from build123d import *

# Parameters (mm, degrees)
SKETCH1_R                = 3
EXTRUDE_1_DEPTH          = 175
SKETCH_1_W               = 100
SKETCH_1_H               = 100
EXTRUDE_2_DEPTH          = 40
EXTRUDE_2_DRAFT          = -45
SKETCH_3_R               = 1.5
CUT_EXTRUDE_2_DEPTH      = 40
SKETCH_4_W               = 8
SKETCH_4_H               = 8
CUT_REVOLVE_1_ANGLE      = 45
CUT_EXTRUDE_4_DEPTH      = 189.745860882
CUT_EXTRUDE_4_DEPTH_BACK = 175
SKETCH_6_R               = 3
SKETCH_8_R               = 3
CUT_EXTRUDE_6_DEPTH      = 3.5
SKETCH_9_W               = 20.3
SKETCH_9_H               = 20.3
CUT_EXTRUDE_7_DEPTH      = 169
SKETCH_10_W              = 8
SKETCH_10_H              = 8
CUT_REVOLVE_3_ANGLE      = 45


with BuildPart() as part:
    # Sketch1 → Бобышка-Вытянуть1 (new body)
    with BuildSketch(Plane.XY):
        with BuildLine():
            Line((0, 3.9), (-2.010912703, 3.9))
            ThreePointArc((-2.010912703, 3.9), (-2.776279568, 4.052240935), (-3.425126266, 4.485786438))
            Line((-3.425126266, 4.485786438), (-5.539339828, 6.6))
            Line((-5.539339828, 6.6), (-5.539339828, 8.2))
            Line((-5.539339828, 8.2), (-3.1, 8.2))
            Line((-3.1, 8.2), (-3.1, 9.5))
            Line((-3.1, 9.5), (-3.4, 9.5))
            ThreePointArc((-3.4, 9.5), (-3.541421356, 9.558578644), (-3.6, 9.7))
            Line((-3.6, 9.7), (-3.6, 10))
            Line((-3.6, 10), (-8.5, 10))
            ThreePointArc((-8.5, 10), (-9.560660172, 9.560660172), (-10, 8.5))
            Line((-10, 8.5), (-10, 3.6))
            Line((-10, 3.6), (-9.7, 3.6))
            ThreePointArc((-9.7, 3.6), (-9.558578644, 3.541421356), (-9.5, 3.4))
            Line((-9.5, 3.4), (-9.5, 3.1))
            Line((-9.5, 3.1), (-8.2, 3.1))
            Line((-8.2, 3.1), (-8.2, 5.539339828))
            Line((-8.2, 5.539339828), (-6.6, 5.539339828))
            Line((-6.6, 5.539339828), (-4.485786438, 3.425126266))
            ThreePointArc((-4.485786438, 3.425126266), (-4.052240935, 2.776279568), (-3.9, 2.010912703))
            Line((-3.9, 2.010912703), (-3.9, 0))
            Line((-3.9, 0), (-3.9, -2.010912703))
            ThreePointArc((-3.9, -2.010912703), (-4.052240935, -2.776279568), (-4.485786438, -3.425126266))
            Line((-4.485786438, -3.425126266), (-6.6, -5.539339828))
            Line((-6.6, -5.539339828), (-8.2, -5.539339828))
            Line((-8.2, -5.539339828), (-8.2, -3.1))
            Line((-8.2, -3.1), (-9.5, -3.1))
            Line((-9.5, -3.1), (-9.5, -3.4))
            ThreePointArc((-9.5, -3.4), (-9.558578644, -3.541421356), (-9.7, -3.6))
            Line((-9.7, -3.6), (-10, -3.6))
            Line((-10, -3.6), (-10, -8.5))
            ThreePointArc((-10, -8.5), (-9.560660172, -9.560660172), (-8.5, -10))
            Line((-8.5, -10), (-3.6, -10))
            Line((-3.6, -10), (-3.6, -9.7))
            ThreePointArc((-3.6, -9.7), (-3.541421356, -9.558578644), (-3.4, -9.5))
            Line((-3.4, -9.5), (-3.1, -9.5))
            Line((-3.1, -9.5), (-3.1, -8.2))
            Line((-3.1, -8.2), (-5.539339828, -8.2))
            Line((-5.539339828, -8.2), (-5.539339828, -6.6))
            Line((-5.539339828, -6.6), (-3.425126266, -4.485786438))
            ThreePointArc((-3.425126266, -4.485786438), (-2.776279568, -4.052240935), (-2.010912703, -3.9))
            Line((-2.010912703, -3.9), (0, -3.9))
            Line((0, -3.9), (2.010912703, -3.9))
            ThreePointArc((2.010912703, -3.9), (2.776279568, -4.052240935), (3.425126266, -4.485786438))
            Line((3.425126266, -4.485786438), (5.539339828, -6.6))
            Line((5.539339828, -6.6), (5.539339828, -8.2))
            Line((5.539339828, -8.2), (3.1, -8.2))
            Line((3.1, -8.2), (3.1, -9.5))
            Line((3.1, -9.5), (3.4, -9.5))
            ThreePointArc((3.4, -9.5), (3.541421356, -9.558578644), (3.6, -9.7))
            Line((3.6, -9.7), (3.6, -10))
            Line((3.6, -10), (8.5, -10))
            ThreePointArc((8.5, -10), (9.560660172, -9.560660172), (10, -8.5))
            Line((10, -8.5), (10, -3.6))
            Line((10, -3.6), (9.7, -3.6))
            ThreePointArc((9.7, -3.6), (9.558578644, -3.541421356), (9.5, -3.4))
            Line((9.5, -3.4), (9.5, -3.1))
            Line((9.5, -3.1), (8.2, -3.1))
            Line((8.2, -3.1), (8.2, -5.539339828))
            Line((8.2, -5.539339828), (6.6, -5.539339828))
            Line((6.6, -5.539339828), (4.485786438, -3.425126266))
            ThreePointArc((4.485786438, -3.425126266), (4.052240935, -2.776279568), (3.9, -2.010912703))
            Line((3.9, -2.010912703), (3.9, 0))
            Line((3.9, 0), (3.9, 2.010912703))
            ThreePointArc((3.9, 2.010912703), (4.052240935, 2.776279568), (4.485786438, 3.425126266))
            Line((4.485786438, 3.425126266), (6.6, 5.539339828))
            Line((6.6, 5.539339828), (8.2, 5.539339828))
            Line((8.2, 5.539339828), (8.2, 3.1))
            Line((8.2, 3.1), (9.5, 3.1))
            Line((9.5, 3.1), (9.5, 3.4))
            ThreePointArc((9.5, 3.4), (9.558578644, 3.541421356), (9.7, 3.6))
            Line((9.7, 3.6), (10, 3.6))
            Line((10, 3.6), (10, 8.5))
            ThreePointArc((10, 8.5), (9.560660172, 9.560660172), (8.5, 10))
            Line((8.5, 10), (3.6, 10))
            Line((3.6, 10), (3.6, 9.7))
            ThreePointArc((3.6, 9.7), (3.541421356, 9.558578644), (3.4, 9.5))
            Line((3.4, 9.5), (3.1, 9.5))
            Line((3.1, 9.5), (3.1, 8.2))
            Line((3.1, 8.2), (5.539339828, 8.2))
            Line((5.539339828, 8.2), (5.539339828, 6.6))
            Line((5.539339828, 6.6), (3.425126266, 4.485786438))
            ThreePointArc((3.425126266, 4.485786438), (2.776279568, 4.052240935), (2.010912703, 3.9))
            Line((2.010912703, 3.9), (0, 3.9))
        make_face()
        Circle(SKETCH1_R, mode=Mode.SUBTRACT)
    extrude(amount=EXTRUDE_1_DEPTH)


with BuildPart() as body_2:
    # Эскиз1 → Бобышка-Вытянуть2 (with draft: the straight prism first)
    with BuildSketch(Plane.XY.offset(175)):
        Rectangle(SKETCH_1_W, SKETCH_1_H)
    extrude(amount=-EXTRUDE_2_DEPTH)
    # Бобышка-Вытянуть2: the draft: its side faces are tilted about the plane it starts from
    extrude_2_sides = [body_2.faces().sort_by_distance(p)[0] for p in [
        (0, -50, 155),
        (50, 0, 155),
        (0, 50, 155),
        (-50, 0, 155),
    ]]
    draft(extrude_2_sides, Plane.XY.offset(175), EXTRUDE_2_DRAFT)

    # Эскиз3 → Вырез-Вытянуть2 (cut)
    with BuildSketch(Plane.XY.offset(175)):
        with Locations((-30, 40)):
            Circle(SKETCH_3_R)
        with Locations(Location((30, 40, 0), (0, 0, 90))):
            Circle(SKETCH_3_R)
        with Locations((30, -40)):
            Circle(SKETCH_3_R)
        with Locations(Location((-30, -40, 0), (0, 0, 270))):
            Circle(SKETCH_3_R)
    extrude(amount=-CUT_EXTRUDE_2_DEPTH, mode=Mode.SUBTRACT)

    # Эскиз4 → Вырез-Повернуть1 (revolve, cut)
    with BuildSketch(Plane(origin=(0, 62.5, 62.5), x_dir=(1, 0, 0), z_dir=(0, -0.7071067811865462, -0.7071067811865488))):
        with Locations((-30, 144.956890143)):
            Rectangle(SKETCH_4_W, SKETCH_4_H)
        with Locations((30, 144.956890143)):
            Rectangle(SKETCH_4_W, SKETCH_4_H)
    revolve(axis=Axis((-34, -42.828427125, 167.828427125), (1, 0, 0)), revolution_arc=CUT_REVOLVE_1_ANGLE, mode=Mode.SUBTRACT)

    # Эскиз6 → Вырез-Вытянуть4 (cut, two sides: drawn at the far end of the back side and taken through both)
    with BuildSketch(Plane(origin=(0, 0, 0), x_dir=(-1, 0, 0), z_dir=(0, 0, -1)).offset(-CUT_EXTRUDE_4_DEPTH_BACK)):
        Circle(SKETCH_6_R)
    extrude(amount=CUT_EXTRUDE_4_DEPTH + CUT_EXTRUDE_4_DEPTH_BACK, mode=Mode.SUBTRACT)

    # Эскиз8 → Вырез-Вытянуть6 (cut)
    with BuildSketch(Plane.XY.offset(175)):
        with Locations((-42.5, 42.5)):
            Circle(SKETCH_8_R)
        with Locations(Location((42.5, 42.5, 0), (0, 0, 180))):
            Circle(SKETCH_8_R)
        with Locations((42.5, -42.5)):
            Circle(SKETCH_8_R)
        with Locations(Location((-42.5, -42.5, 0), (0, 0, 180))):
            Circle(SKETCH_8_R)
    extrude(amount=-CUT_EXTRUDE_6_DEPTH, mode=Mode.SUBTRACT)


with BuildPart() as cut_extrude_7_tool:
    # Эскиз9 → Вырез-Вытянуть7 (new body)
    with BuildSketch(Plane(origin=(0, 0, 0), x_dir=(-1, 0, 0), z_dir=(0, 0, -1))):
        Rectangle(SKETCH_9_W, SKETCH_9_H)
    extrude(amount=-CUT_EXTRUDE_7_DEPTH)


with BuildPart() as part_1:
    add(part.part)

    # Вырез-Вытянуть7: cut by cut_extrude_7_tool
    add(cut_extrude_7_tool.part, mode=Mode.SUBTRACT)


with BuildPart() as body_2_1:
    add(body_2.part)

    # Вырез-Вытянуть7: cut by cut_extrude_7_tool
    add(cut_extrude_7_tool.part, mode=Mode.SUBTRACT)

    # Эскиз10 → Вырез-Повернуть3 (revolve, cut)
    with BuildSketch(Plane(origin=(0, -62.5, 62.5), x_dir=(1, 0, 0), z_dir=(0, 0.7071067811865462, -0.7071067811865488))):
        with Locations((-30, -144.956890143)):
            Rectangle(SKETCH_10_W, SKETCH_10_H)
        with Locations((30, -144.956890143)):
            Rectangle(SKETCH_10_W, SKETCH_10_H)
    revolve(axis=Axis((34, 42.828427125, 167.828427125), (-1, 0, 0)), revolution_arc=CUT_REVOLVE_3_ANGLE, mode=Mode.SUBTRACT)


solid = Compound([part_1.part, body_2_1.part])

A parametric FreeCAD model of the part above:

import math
import FreeCAD as App
import Part
import Sketcher

V = App.Vector


def faces_at(feature, points):
    """Names of the faces that lie closest to the given points."""
    faces = feature.Shape.Faces
    near = lambda p: min(range(len(faces)), key=lambda i: faces[i].distToShape(Part.Vertex(*p))[0])
    return sorted({f"Face{near(p) + 1}" for p in points})

doc = App.newDocument("Part")
body = doc.addObject("PartDesign::Body", "Body")

# Sketch on XY plane
sketch1 = doc.addObject("Sketcher::SketchObject", "Sketch")
body.addObject(sketch1)
sketch1.AttachmentSupport = (doc.XY_Plane, [""])
sketch1.MapMode = "FlatFace"
sketch1.addGeometry([
    Part.ArcOfCircle(Part.Circle(V(-2.01, 5.9, 0), V(0, 0, 1), 2), math.radians(-135), math.radians(-90)),  # 0
    Part.LineSegment(V(-3.43, 4.49, 0), V(-5.54, 6.6, 0)),  # 1
    Part.LineSegment(V(-5.54, 6.6, 0), V(-5.54, 8.2, 0)),  # 2
    Part.LineSegment(V(-5.54, 8.2, 0), V(-3.1, 8.2, 0)),  # 3
    Part.LineSegment(V(-3.1, 8.2, 0), V(-3.1, 9.5, 0)),  # 4
    Part.LineSegment(V(-3.1, 9.5, 0), V(-3.4, 9.5, 0)),  # 5
    Part.ArcOfCircle(Part.Circle(V(-3.4, 9.7, 0), V(0, 0, 1), 0.2), math.radians(-180), math.radians(-90)),  # 6
    Part.LineSegment(V(-3.6, 9.7, 0), V(-3.6, 10, 0)),  # 7
    Part.LineSegment(V(-3.6, 10, 0), V(-8.5, 10, 0)),  # 8
    Part.ArcOfCircle(Part.Circle(V(-8.5, 8.5, 0), V(0, 0, 1), 1.5), math.radians(90), math.radians(180)),  # 9
    Part.LineSegment(V(-10, 8.5, 0), V(-10, 3.6, 0)),  # 10
    Part.LineSegment(V(-10, 3.6, 0), V(-9.7, 3.6, 0)),  # 11
    Part.ArcOfCircle(Part.Circle(V(-9.7, 3.4, 0), V(0, 0, 1), 0.2), math.radians(0), math.radians(90)),  # 12
    Part.LineSegment(V(-9.5, 3.4, 0), V(-9.5, 3.1, 0)),  # 13
    Part.LineSegment(V(-9.5, 3.1, 0), V(-8.2, 3.1, 0)),  # 14
    Part.LineSegment(V(-8.2, 3.1, 0), V(-8.2, 5.54, 0)),  # 15
    Part.LineSegment(V(-8.2, 5.54, 0), V(-6.6, 5.54, 0)),  # 16
    Part.LineSegment(V(-6.6, 5.54, 0), V(-4.49, 3.43, 0)),  # 17
    Part.ArcOfCircle(Part.Circle(V(-5.9, 2.01, 0), V(0, 0, 1), 2), math.radians(0), math.radians(45)),  # 18
    Part.LineSegment(V(-3.9, 2.01, 0), V(-3.9, -2.01, 0)),  # 19
    Part.ArcOfCircle(Part.Circle(V(-5.9, -2.01, 0), V(0, 0, 1), 2), math.radians(-45), math.radians(0)),  # 20
    Part.LineSegment(V(-4.49, -3.43, 0), V(-6.6, -5.54, 0)),  # 21
    Part.LineSegment(V(-6.6, -5.54, 0), V(-8.2, -5.54, 0)),  # 22
    Part.LineSegment(V(-8.2, -5.54, 0), V(-8.2, -3.1, 0)),  # 23
    Part.LineSegment(V(-8.2, -3.1, 0), V(-9.5, -3.1, 0)),  # 24
    Part.LineSegment(V(-9.5, -3.1, 0), V(-9.5, -3.4, 0)),  # 25
    Part.ArcOfCircle(Part.Circle(V(-9.7, -3.4, 0), V(0, 0, 1), 0.2), math.radians(-90), math.radians(0)),  # 26
    Part.LineSegment(V(-9.7, -3.6, 0), V(-10, -3.6, 0)),  # 27
    Part.LineSegment(V(-10, -3.6, 0), V(-10, -8.5, 0)),  # 28
    Part.ArcOfCircle(Part.Circle(V(-8.5, -8.5, 0), V(0, 0, 1), 1.5), math.radians(180), math.radians(270)),  # 29
    Part.LineSegment(V(-8.5, -10, 0), V(-3.6, -10, 0)),  # 30
    Part.LineSegment(V(-3.6, -10, 0), V(-3.6, -9.7, 0)),  # 31
    Part.ArcOfCircle(Part.Circle(V(-3.4, -9.7, 0), V(0, 0, 1), 0.2), math.radians(90), math.radians(180)),  # 32
    Part.LineSegment(V(-3.4, -9.5, 0), V(-3.1, -9.5, 0)),  # 33
    Part.LineSegment(V(-3.1, -9.5, 0), V(-3.1, -8.2, 0)),  # 34
    Part.LineSegment(V(-3.1, -8.2, 0), V(-5.54, -8.2, 0)),  # 35
    Part.LineSegment(V(-5.54, -8.2, 0), V(-5.54, -6.6, 0)),  # 36
    Part.LineSegment(V(-5.54, -6.6, 0), V(-3.43, -4.49, 0)),  # 37
    Part.ArcOfCircle(Part.Circle(V(-2.01, -5.9, 0), V(0, 0, 1), 2), math.radians(90), math.radians(135)),  # 38
    Part.LineSegment(V(-2.01, -3.9, 0), V(2.01, -3.9, 0)),  # 39
    Part.ArcOfCircle(Part.Circle(V(2.01, -5.9, 0), V(0, 0, 1), 2), math.radians(45), math.radians(90)),  # 40
    Part.LineSegment(V(3.43, -4.49, 0), V(5.54, -6.6, 0)),  # 41
    Part.LineSegment(V(5.54, -6.6, 0), V(5.54, -8.2, 0)),  # 42
    Part.LineSegment(V(5.54, -8.2, 0), V(3.1, -8.2, 0)),  # 43
    Part.LineSegment(V(3.1, -8.2, 0), V(3.1, -9.5, 0)),  # 44
    Part.LineSegment(V(3.1, -9.5, 0), V(3.4, -9.5, 0)),  # 45
    Part.ArcOfCircle(Part.Circle(V(3.4, -9.7, 0), V(0, 0, 1), 0.2), math.radians(0), math.radians(90)),  # 46
    Part.LineSegment(V(3.6, -9.7, 0), V(3.6, -10, 0)),  # 47
    Part.LineSegment(V(3.6, -10, 0), V(8.5, -10, 0)),  # 48
    Part.ArcOfCircle(Part.Circle(V(8.5, -8.5, 0), V(0, 0, 1), 1.5), math.radians(-90), math.radians(0)),  # 49
    Part.LineSegment(V(10, -8.5, 0), V(10, -3.6, 0)),  # 50
    Part.LineSegment(V(10, -3.6, 0), V(9.7, -3.6, 0)),  # 51
    Part.ArcOfCircle(Part.Circle(V(9.7, -3.4, 0), V(0, 0, 1), 0.2), math.radians(-180), math.radians(-90)),  # 52
    Part.LineSegment(V(9.5, -3.4, 0), V(9.5, -3.1, 0)),  # 53
    Part.LineSegment(V(9.5, -3.1, 0), V(8.2, -3.1, 0)),  # 54
    Part.LineSegment(V(8.2, -3.1, 0), V(8.2, -5.54, 0)),  # 55
    Part.LineSegment(V(8.2, -5.54, 0), V(6.6, -5.54, 0)),  # 56
    Part.LineSegment(V(6.6, -5.54, 0), V(4.49, -3.43, 0)),  # 57
    Part.ArcOfCircle(Part.Circle(V(5.9, -2.01, 0), V(0, 0, 1), 2), math.radians(180), math.radians(225)),  # 58
    Part.LineSegment(V(3.9, -2.01, 0), V(3.9, 2.01, 0)),  # 59
    Part.ArcOfCircle(Part.Circle(V(5.9, 2.01, 0), V(0, 0, 1), 2), math.radians(135), math.radians(180)),  # 60
    Part.LineSegment(V(4.49, 3.43, 0), V(6.6, 5.54, 0)),  # 61
    Part.LineSegment(V(6.6, 5.54, 0), V(8.2, 5.54, 0)),  # 62
    Part.LineSegment(V(8.2, 5.54, 0), V(8.2, 3.1, 0)),  # 63
    Part.LineSegment(V(8.2, 3.1, 0), V(9.5, 3.1, 0)),  # 64
    Part.LineSegment(V(9.5, 3.1, 0), V(9.5, 3.4, 0)),  # 65
    Part.ArcOfCircle(Part.Circle(V(9.7, 3.4, 0), V(0, 0, 1), 0.2), math.radians(90), math.radians(180)),  # 66
    Part.LineSegment(V(9.7, 3.6, 0), V(10, 3.6, 0)),  # 67
    Part.LineSegment(V(10, 3.6, 0), V(10, 8.5, 0)),  # 68
    Part.ArcOfCircle(Part.Circle(V(8.5, 8.5, 0), V(0, 0, 1), 1.5), math.radians(0), math.radians(90)),  # 69
    Part.LineSegment(V(8.5, 10, 0), V(3.6, 10, 0)),  # 70
    Part.LineSegment(V(3.6, 10, 0), V(3.6, 9.7, 0)),  # 71
    Part.ArcOfCircle(Part.Circle(V(3.4, 9.7, 0), V(0, 0, 1), 0.2), math.radians(-90), math.radians(0)),  # 72
    Part.LineSegment(V(3.4, 9.5, 0), V(3.1, 9.5, 0)),  # 73
    Part.LineSegment(V(3.1, 9.5, 0), V(3.1, 8.2, 0)),  # 74
    Part.LineSegment(V(3.1, 8.2, 0), V(5.54, 8.2, 0)),  # 75
    Part.LineSegment(V(5.54, 8.2, 0), V(5.54, 6.6, 0)),  # 76
    Part.LineSegment(V(5.54, 6.6, 0), V(3.43, 4.49, 0)),  # 77
    Part.ArcOfCircle(Part.Circle(V(2.01, 5.9, 0), V(0, 0, 1), 2), math.radians(-90), math.radians(-45)),  # 78
    Part.LineSegment(V(2.01, 3.9, 0), V(-2.01, 3.9, 0)),  # 79
    Part.Circle(V(0, 0, 0), V(0, 0, 1), 3),  # 80
], False)
sketch1.addConstraint([
    Sketcher.Constraint("Tangent", 0, 1, 1, 1),
    Sketcher.Constraint("Coincident", 1, 2, 2, 1),
    Sketcher.Constraint("Coincident", 2, 2, 3, 1),
    Sketcher.Constraint("Coincident", 3, 2, 4, 1),
    Sketcher.Constraint("Coincident", 4, 2, 5, 1),
    Sketcher.Constraint("Tangent", 5, 2, 6, 2),
    Sketcher.Constraint("Tangent", 6, 1, 7, 1),
    Sketcher.Constraint("Coincident", 7, 2, 8, 1),
    Sketcher.Constraint("Tangent", 8, 2, 9, 1),
    Sketcher.Constraint("Tangent", 9, 2, 10, 1),
    Sketcher.Constraint("Coincident", 10, 2, 11, 1),
    Sketcher.Constraint("Tangent", 11, 2, 12, 2),
    Sketcher.Constraint("Tangent", 12, 1, 13, 1),
    Sketcher.Constraint("Coincident", 13, 2, 14, 1),
    Sketcher.Constraint("Coincident", 14, 2, 15, 1),
    Sketcher.Constraint("Coincident", 15, 2, 16, 1),
    Sketcher.Constraint("Coincident", 16, 2, 17, 1),
    Sketcher.Constraint("Tangent", 17, 2, 18, 2),
    Sketcher.Constraint("Tangent", 18, 1, 19, 1),
    Sketcher.Constraint("Tangent", 19, 2, 20, 2),
    Sketcher.Constraint("Tangent", 20, 1, 21, 1),
    Sketcher.Constraint("Coincident", 21, 2, 22, 1),
    Sketcher.Constraint("Coincident", 22, 2, 23, 1),
    Sketcher.Constraint("Coincident", 23, 2, 24, 1),
    Sketcher.Constraint("Coincident", 24, 2, 25, 1),
    Sketcher.Constraint("Tangent", 25, 2, 26, 2),
    Sketcher.Constraint("Tangent", 26, 1, 27, 1),
    Sketcher.Constraint("Coincident", 27, 2, 28, 1),
    Sketcher.Constraint("Tangent", 28, 2, 29, 1),
    Sketcher.Constraint("Tangent", 29, 2, 30, 1),
    Sketcher.Constraint("Coincident", 30, 2, 31, 1),
    Sketcher.Constraint("Tangent", 31, 2, 32, 2),
    Sketcher.Constraint("Tangent", 32, 1, 33, 1),
    Sketcher.Constraint("Coincident", 33, 2, 34, 1),
    Sketcher.Constraint("Coincident", 34, 2, 35, 1),
    Sketcher.Constraint("Coincident", 35, 2, 36, 1),
    Sketcher.Constraint("Coincident", 36, 2, 37, 1),
    Sketcher.Constraint("Tangent", 37, 2, 38, 2),
    Sketcher.Constraint("Tangent", 38, 1, 39, 1),
    Sketcher.Constraint("Tangent", 39, 2, 40, 2),
    Sketcher.Constraint("Tangent", 40, 1, 41, 1),
    Sketcher.Constraint("Coincident", 41, 2, 42, 1),
    Sketcher.Constraint("Coincident", 42, 2, 43, 1),
    Sketcher.Constraint("Coincident", 43, 2, 44, 1),
    Sketcher.Constraint("Coincident", 44, 2, 45, 1),
    Sketcher.Constraint("Tangent", 45, 2, 46, 2),
    Sketcher.Constraint("Tangent", 46, 1, 47, 1),
    Sketcher.Constraint("Coincident", 47, 2, 48, 1),
    Sketcher.Constraint("Tangent", 48, 2, 49, 1),
    Sketcher.Constraint("Tangent", 49, 2, 50, 1),
    Sketcher.Constraint("Coincident", 50, 2, 51, 1),
    Sketcher.Constraint("Tangent", 51, 2, 52, 2),
    Sketcher.Constraint("Tangent", 52, 1, 53, 1),
    Sketcher.Constraint("Coincident", 53, 2, 54, 1),
    Sketcher.Constraint("Coincident", 54, 2, 55, 1),
    Sketcher.Constraint("Coincident", 55, 2, 56, 1),
    Sketcher.Constraint("Coincident", 56, 2, 57, 1),
    Sketcher.Constraint("Tangent", 57, 2, 58, 2),
    Sketcher.Constraint("Tangent", 58, 1, 59, 1),
    Sketcher.Constraint("Tangent", 59, 2, 60, 2),
    Sketcher.Constraint("Tangent", 60, 1, 61, 1),
    Sketcher.Constraint("Coincident", 61, 2, 62, 1),
    Sketcher.Constraint("Coincident", 62, 2, 63, 1),
    Sketcher.Constraint("Coincident", 63, 2, 64, 1),
    Sketcher.Constraint("Coincident", 64, 2, 65, 1),
    Sketcher.Constraint("Tangent", 65, 2, 66, 2),
    Sketcher.Constraint("Tangent", 66, 1, 67, 1),
    Sketcher.Constraint("Coincident", 67, 2, 68, 1),
    Sketcher.Constraint("Tangent", 68, 2, 69, 1),
    Sketcher.Constraint("Tangent", 69, 2, 70, 1),
    Sketcher.Constraint("Coincident", 70, 2, 71, 1),
    Sketcher.Constraint("Tangent", 71, 2, 72, 2),
    Sketcher.Constraint("Tangent", 72, 1, 73, 1),
    Sketcher.Constraint("Coincident", 73, 2, 74, 1),
    Sketcher.Constraint("Coincident", 74, 2, 75, 1),
    Sketcher.Constraint("Coincident", 75, 2, 76, 1),
    Sketcher.Constraint("Coincident", 76, 2, 77, 1),
    Sketcher.Constraint("Tangent", 77, 2, 78, 2),
    Sketcher.Constraint("Tangent", 78, 1, 79, 1),
    Sketcher.Constraint("Tangent", 79, 2, 0, 2),
    Sketcher.Constraint("Vertical", 2),
    Sketcher.Constraint("Horizontal", 3),
    Sketcher.Constraint("Vertical", 4),
    Sketcher.Constraint("Horizontal", 5),
    Sketcher.Constraint("Vertical", 7),
    Sketcher.Constraint("Horizontal", 8),
    Sketcher.Constraint("Vertical", 10),
    Sketcher.Constraint("Horizontal", 11),
    Sketcher.Constraint("Vertical", 13),
    Sketcher.Constraint("Horizontal", 14),
    Sketcher.Constraint("Vertical", 15),
    Sketcher.Constraint("Horizontal", 16),
    Sketcher.Constraint("Vertical", 19),
    Sketcher.Constraint("Horizontal", 22),
    Sketcher.Constraint("Vertical", 23),
    Sketcher.Constraint("Horizontal", 24),
    Sketcher.Constraint("Vertical", 25),
    Sketcher.Constraint("Horizontal", 27),
    Sketcher.Constraint("Vertical", 28),
    Sketcher.Constraint("Horizontal", 30),
    Sketcher.Constraint("Vertical", 31),
    Sketcher.Constraint("Horizontal", 33),
    Sketcher.Constraint("Vertical", 34),
    Sketcher.Constraint("Horizontal", 35),
    Sketcher.Constraint("Vertical", 36),
    Sketcher.Constraint("Horizontal", 39),
    Sketcher.Constraint("Vertical", 42),
    Sketcher.Constraint("Horizontal", 43),
    Sketcher.Constraint("Vertical", 44),
    Sketcher.Constraint("Horizontal", 45),
    Sketcher.Constraint("Vertical", 47),
    Sketcher.Constraint("Horizontal", 48),
    Sketcher.Constraint("Vertical", 50),
    Sketcher.Constraint("Horizontal", 51),
    Sketcher.Constraint("Vertical", 53),
    Sketcher.Constraint("Horizontal", 54),
    Sketcher.Constraint("Vertical", 55),
    Sketcher.Constraint("Horizontal", 56),
    Sketcher.Constraint("Vertical", 59),
    Sketcher.Constraint("Horizontal", 62),
    Sketcher.Constraint("Vertical", 63),
    Sketcher.Constraint("Horizontal", 64),
    Sketcher.Constraint("Vertical", 65),
    Sketcher.Constraint("Horizontal", 67),
    Sketcher.Constraint("Vertical", 68),
    Sketcher.Constraint("Horizontal", 70),
    Sketcher.Constraint("Vertical", 71),
    Sketcher.Constraint("Horizontal", 73),
    Sketcher.Constraint("Vertical", 74),
    Sketcher.Constraint("Horizontal", 75),
    Sketcher.Constraint("Vertical", 76),
    Sketcher.Constraint("Horizontal", 79),
    Sketcher.Constraint("Coincident", 80, 3, -1, 1),
    Sketcher.Constraint("Equal", 6, 12),
    Sketcher.Constraint("Equal", 0, 18),
    Sketcher.Constraint("Equal", 18, 20),
    Sketcher.Constraint("Equal", 12, 26),
    Sketcher.Constraint("Equal", 9, 29),
    Sketcher.Constraint("Equal", 26, 32),
    Sketcher.Constraint("Equal", 20, 38),
    Sketcher.Constraint("Equal", 38, 40),
    Sketcher.Constraint("Equal", 32, 46),
    Sketcher.Constraint("Equal", 29, 49),
    Sketcher.Constraint("Equal", 46, 52),
    Sketcher.Constraint("Equal", 40, 58),
    Sketcher.Constraint("Equal", 58, 60),
    Sketcher.Constraint("Equal", 52, 66),
    Sketcher.Constraint("Equal", 49, 69),
    Sketcher.Constraint("Equal", 66, 72),
    Sketcher.Constraint("Equal", 60, 78),
    Sketcher.Constraint("Symmetric", 0, 3, 40, 3, -1, 1),
    Sketcher.Constraint("Symmetric", 6, 3, 46, 3, -1, 1),
    Sketcher.Constraint("Symmetric", 9, 3, 49, 3, -1, 1),
    Sketcher.Constraint("Symmetric", 12, 3, 52, 3, -1, 1),
    Sketcher.Constraint("Symmetric", 18, 3, 58, 3, -1, 1),
    Sketcher.Constraint("Symmetric", 26, 3, 66, 3, -1, 1),
    Sketcher.Constraint("Symmetric", 29, 3, 69, 3, -1, 1),
    Sketcher.Constraint("Symmetric", 32, 3, 72, 3, -1, 1),
    Sketcher.Constraint("Symmetric", 1, 2, 41, 2, -1, 1),
    Sketcher.Constraint("Symmetric", 3, 2, 43, 2, -1, 1),
    Sketcher.Constraint("Symmetric", 14, 2, 54, 2, -1, 1),
    Sketcher.Constraint("Symmetric", 16, 2, 56, 2, -1, 1),
    Sketcher.Constraint("Symmetric", 20, 1, 60, 1, -1, 1),
    Sketcher.Constraint("Symmetric", 22, 2, 62, 2, -1, 1),
    Sketcher.Constraint("Symmetric", 34, 2, 74, 2, -1, 1),
    Sketcher.Constraint("Symmetric", 36, 2, 76, 2, -1, 1),
    Sketcher.Constraint("Symmetric", 32, 3, 46, 3, -2),
    Sketcher.Constraint("Symmetric", 29, 3, 49, 3, -2),
    Sketcher.Constraint("Symmetric", 26, 3, 52, 3, -2),
    Sketcher.Constraint("Symmetric", 37, 2, 40, 1, -2),
    Sketcher.Constraint("Symmetric", 35, 2, 42, 2, -2),
    Sketcher.Constraint("Symmetric", 23, 2, 54, 2, -2),
    Sketcher.Constraint("Symmetric", 21, 2, 56, 2, -2),
    Sketcher.Constraint("Parallel", 1, 17),
    Sketcher.Constraint("Perpendicular", 17, 21),
    Sketcher.Constraint("Parallel", 21, 37),
    Sketcher.Constraint("Parallel", 61, 77),
    Sketcher.Constraint("Horizontal", 14, 2, 63, 2),
    Sketcher.Constraint("Vertical", 4, 2, 33, 2),
    Sketcher.Constraint("Equal", 5, 11),
    Sketcher.Constraint("Equal", 62, 2),
    Sketcher.Constraint("Equal", 64, 4),
    Sketcher.Constraint("Equal", 73, 7),
    Sketcher.Constraint("Equal", 70, 10),
    Sketcher.Constraint("Equal", 7, 13),
    Sketcher.Constraint("Equal", 75, 15),
    Sketcher.Constraint("Equal", 79, 19),
    Sketcher.Constraint("Equal", 1, 17),
    Sketcher.Constraint("Diameter", 80, 6.0),
    Sketcher.Constraint("Radius", 0, 2.0),
    Sketcher.Constraint("Radius", 6, 0.2),
    Sketcher.Constraint("Radius", 9, 1.5),
    Sketcher.Constraint("DistanceX", 5, 2, 5, 1, 0.3),
    Sketcher.Constraint("DistanceX", 8, 2, 8, 1, 4.9),
    Sketcher.Constraint("DistanceX", 14, 1, 14, 2, 1.3),
    Sketcher.Constraint("DistanceX", 16, 1, 16, 2, 1.6),
    Sketcher.Constraint("DistanceY", -1, 1, 7, 2, 10.0),
    Sketcher.Constraint("DistanceY", -1, 1, 0, 3, 5.9),
    Sketcher.Constraint("DistanceX", 3, 1, 3, 2, 2.43934),
])
pad1 = doc.addObject("PartDesign::Pad", "Pad")
body.addObject(pad1)
pad1.Profile = sketch1
pad1.Length = 175
body2 = doc.addObject("PartDesign::Body", "Body001")

# Sketch on XY plane
sketch2 = doc.addObject("Sketcher::SketchObject", "Sketch001")
body2.addObject(sketch2)
sketch2.AttachmentSupport = (doc.getObject("XY_Plane001"), [""])
sketch2.MapMode = "FlatFace"
sketch2.AttachmentOffset = App.Placement(V(0, 0, 175), App.Rotation())
sketch2.addGeometry([
    Part.LineSegment(V(-50, 50, 0), V(-50, -50, 0)),
    Part.LineSegment(V(-50, -50, 0), V(50, -50, 0)),
    Part.LineSegment(V(50, -50, 0), V(50, 50, 0)),
    Part.LineSegment(V(50, 50, 0), V(-50, 50, 0)),
], False)
sketch2.addConstraint([
    Sketcher.Constraint("Coincident", 0, 2, 1, 1),
    Sketcher.Constraint("Coincident", 1, 2, 2, 1),
    Sketcher.Constraint("Coincident", 2, 2, 3, 1),
    Sketcher.Constraint("Coincident", 3, 2, 0, 1),
    Sketcher.Constraint("Vertical", 0),
    Sketcher.Constraint("Horizontal", 1),
    Sketcher.Constraint("Vertical", 2),
    Sketcher.Constraint("Horizontal", 3),
    Sketcher.Constraint("Symmetric", 0, 2, 2, 2, -1, 1),
    Sketcher.Constraint("Equal", 3, 0),
    Sketcher.Constraint("DistanceX", 1, 1, 1, 2, 100.0),
])
pad2 = doc.addObject("PartDesign::Pad", "Pad001")
body2.addObject(pad2)
pad2.Profile = sketch2
pad2.Length = 40
pad2.Reversed = True
doc.recompute()

datumplane = doc.addObject("PartDesign::Plane", "DatumPlane")
body2.addObject(datumplane)
datumplane.AttachmentSupport = (doc.getObject("XY_Plane001"), [""])
datumplane.MapMode = "FlatFace"
datumplane.AttachmentOffset = App.Placement(V(0, 0, 175), App.Rotation())
draft = doc.addObject("PartDesign::Draft", "Draft")
body2.addObject(draft)
draft.Base = (pad2, faces_at(pad2, [
    (0, -50, 155),
    (50, 0, 155),
    (0, 50, 155),
    (-50, 0, 155),
]))
draft.NeutralPlane = (datumplane, [""])
draft.Angle = 45
draft.Reversed = True

# Sketch on XY plane
sketch3 = doc.addObject("Sketcher::SketchObject", "Sketch002")
body2.addObject(sketch3)
sketch3.AttachmentSupport = (doc.getObject("XY_Plane001"), [""])
sketch3.MapMode = "FlatFace"
sketch3.AttachmentOffset = App.Placement(V(0, 0, 175), App.Rotation())
sketch3.addGeometry([
    Part.Circle(V(-30, 40, 0), V(0, 0, 1), 1.5),
    Part.Circle(V(30, 40, 0), V(0, 0, 1), 1.5),
    Part.Circle(V(30, -40, 0), V(0, 0, 1), 1.5),
    Part.Circle(V(-30, -40, 0), V(0, 0, 1), 1.5),
], False)
sketch3.addConstraint([
    Sketcher.Constraint("Equal", 0, 1),
    Sketcher.Constraint("Equal", 1, 2),
    Sketcher.Constraint("Equal", 2, 3),
    Sketcher.Constraint("Symmetric", 0, 3, 2, 3, -1, 1),
    Sketcher.Constraint("Symmetric", 1, 3, 3, 3, -1, 1),
    Sketcher.Constraint("Symmetric", 0, 3, 1, 3, -2),
    Sketcher.Constraint("Diameter", 0, 3.0),
    Sketcher.Constraint("DistanceX", 0, 3, -1, 1, 30.0),
    Sketcher.Constraint("DistanceY", -1, 1, 0, 3, 40.0),
])
pocket1 = doc.addObject("PartDesign::Pocket", "Pocket")
body2.addObject(pocket1)
pocket1.Profile = sketch3
pocket1.Length = 40

# Sketch on an angled plane
sketch4 = doc.addObject("Sketcher::SketchObject", "Sketch003")
body2.addObject(sketch4)
sketch4.Placement = App.Placement(V(0, 62.5, 62.5), App.Rotation(V(1, 0, 0), V(0, -0.707106781, 0.707106781), V(0, -0.707106781, -0.707106781), "ZXY"))
sketch4.addGeometry([
    Part.LineSegment(V(-34, 149, 0), V(-34, 141, 0)),  # 0
    Part.LineSegment(V(-34, 141, 0), V(-26, 141, 0)),  # 1
    Part.LineSegment(V(-26, 141, 0), V(-26, 149, 0)),  # 2
    Part.LineSegment(V(-26, 149, 0), V(-34, 149, 0)),  # 3
    Part.LineSegment(V(26, 149, 0), V(26, 141, 0)),  # 4
    Part.LineSegment(V(26, 141, 0), V(34, 141, 0)),  # 5
    Part.LineSegment(V(34, 141, 0), V(34, 149, 0)),  # 6
    Part.LineSegment(V(34, 149, 0), V(26, 149, 0)),  # 7
], False)
sketch4.addGeometry(Part.LineSegment(V(-34, 149, 0), V(34, 149, 0)), True)  # axis
sketch4.addConstraint([
    Sketcher.Constraint("Coincident", 0, 2, 1, 1),
    Sketcher.Constraint("Coincident", 1, 2, 2, 1),
    Sketcher.Constraint("Coincident", 2, 2, 3, 1),
    Sketcher.Constraint("Coincident", 3, 2, 0, 1),
    Sketcher.Constraint("Coincident", 4, 2, 5, 1),
    Sketcher.Constraint("Coincident", 5, 2, 6, 1),
    Sketcher.Constraint("Coincident", 6, 2, 7, 1),
    Sketcher.Constraint("Coincident", 7, 2, 4, 1),
    Sketcher.Constraint("Vertical", 0),
    Sketcher.Constraint("Horizontal", 1),
    Sketcher.Constraint("Vertical", 2),
    Sketcher.Constraint("Horizontal", 3),
    Sketcher.Constraint("Vertical", 4),
    Sketcher.Constraint("Horizontal", 5),
    Sketcher.Constraint("Vertical", 6),
    Sketcher.Constraint("Horizontal", 7),
    Sketcher.Constraint("Horizontal", 8),
    Sketcher.Constraint("Coincident", 8, 1, 3, 2),
    Sketcher.Constraint("Coincident", 8, 2, 6, 2),
    Sketcher.Constraint("Symmetric", 1, 2, 4, 2, -2),
    Sketcher.Constraint("Equal", 3, 5),
    Sketcher.Constraint("Equal", 7, 0),
    Sketcher.Constraint("DistanceX", 1, 1, 1, 2, 8.0),
    Sketcher.Constraint("DistanceX", 8, 1, 8, 2, 68.0),
    Sketcher.Constraint("DistanceY", -1, 1, 0, 2, 140.95689),
])
groove = doc.addObject("PartDesign::Groove", "Groove")
body2.addObject(groove)
groove.Profile = sketch4
groove.ReferenceAxis = (sketch4, ["Axis0"])
groove.Angle = 45

# Sketch on XY plane
sketch5 = doc.addObject("Sketcher::SketchObject", "Sketch004")
body2.addObject(sketch5)
sketch5.AttachmentSupport = (doc.getObject("XY_Plane001"), [""])
sketch5.MapMode = "FlatFace"
sketch5.addGeometry(Part.Circle(V(0, 0, 0), V(0, 0, 1), 3), False)
sketch5.addConstraint([
    Sketcher.Constraint("Coincident", 0, 3, -1, 1),
    Sketcher.Constraint("Diameter", 0, 6.0),
])
pocket2 = doc.addObject("PartDesign::Pocket", "Pocket001")
body2.addObject(pocket2)
pocket2.Profile = sketch5
pocket2.Type = "ThroughAll"
pocket2.Midplane = True

# Sketch on XY plane
sketch6 = doc.addObject("Sketcher::SketchObject", "Sketch005")
body2.addObject(sketch6)
sketch6.AttachmentSupport = (doc.getObject("XY_Plane001"), [""])
sketch6.MapMode = "FlatFace"
sketch6.AttachmentOffset = App.Placement(V(0, 0, 175), App.Rotation())
sketch6.addGeometry([
    Part.Circle(V(-42.5, 42.5, 0), V(0, 0, 1), 3),
    Part.Circle(V(42.5, 42.5, 0), V(0, 0, 1), 3),
    Part.Circle(V(42.5, -42.5, 0), V(0, 0, 1), 3),
    Part.Circle(V(-42.5, -42.5, 0), V(0, 0, 1), 3),
], False)
sketch6.addConstraint([
    Sketcher.Constraint("Equal", 0, 1),
    Sketcher.Constraint("Equal", 1, 2),
    Sketcher.Constraint("Equal", 2, 3),
    Sketcher.Constraint("Symmetric", 0, 3, 2, 3, -1, 1),
    Sketcher.Constraint("Symmetric", 1, 3, 3, 3, -1, 1),
    Sketcher.Constraint("Symmetric", 0, 3, 1, 3, -2),
    Sketcher.Constraint("Diameter", 0, 6.0),
    Sketcher.Constraint("DistanceX", 0, 3, 1, 3, 85.0),
    Sketcher.Constraint("DistanceY", 2, 3, 1, 3, 85.0),
])
pocket3 = doc.addObject("PartDesign::Pocket", "Pocket002")
body2.addObject(pocket3)
pocket3.Profile = sketch6
pocket3.Length = 3.5
body3 = doc.addObject("PartDesign::Body", "Body002")

# Sketch on XY plane
sketch7 = doc.addObject("Sketcher::SketchObject", "Sketch006")
body3.addObject(sketch7)
sketch7.AttachmentSupport = (doc.getObject("XY_Plane002"), [""])
sketch7.MapMode = "FlatFace"
sketch7.addGeometry([
    Part.LineSegment(V(10, 10, 0), V(10, -10, 0)),
    Part.LineSegment(V(10, -10, 0), V(-10, -10, 0)),
    Part.LineSegment(V(-10, -10, 0), V(-10, 10, 0)),
    Part.LineSegment(V(-10, 10, 0), V(10, 10, 0)),
], False)
sketch7.addConstraint([
    Sketcher.Constraint("Coincident", 0, 2, 1, 1),
    Sketcher.Constraint("Coincident", 1, 2, 2, 1),
    Sketcher.Constraint("Coincident", 2, 2, 3, 1),
    Sketcher.Constraint("Coincident", 3, 2, 0, 1),
    Sketcher.Constraint("Vertical", 0),
    Sketcher.Constraint("Horizontal", 1),
    Sketcher.Constraint("Vertical", 2),
    Sketcher.Constraint("Horizontal", 3),
    Sketcher.Constraint("Symmetric", 0, 2, 2, 2, -1, 1),
    Sketcher.Constraint("Equal", 3, 0),
    Sketcher.Constraint("DistanceX", 1, 2, 1, 1, 20.3),
])
pad3 = doc.addObject("PartDesign::Pad", "Pad002")
body3.addObject(pad3)
pad3.Profile = sketch7
pad3.Length = 169
doc.recompute()

body4 = doc.addObject("PartDesign::Body", "Body003")
body4.BaseFeature = body3
boolean = doc.addObject("PartDesign::Boolean", "Boolean")
body.addObject(boolean)
boolean.Type = "Cut"
boolean.addObjects([body4])
doc.recompute()

boolean2 = doc.addObject("PartDesign::Boolean", "Boolean001")
body2.addObject(boolean2)
boolean2.Type = "Cut"
boolean2.addObjects([body3])

# Sketch on an angled plane
sketch8 = doc.addObject("Sketcher::SketchObject", "Sketch007")
body2.addObject(sketch8)
sketch8.Placement = App.Placement(V(0, -62.5, 62.5), App.Rotation(V(1, 0, 0), V(0, -0.707106781, -0.707106781), V(0, 0.707106781, -0.707106781), "ZXY"))
sketch8.addGeometry([
    Part.LineSegment(V(-34, -141, 0), V(-34, -149, 0)),  # 0
    Part.LineSegment(V(-34, -149, 0), V(-26, -149, 0)),  # 1
    Part.LineSegment(V(-26, -149, 0), V(-26, -141, 0)),  # 2
    Part.LineSegment(V(-26, -141, 0), V(-34, -141, 0)),  # 3
    Part.LineSegment(V(26, -141, 0), V(26, -149, 0)),  # 4
    Part.LineSegment(V(26, -149, 0), V(34, -149, 0)),  # 5
    Part.LineSegment(V(34, -149, 0), V(34, -141, 0)),  # 6
    Part.LineSegment(V(34, -141, 0), V(26, -141, 0)),  # 7
], False)
sketch8.addGeometry(Part.LineSegment(V(34, -149, 0), V(-34, -149, 0)), True)  # axis
sketch8.addConstraint([
    Sketcher.Constraint("Coincident", 0, 2, 1, 1),
    Sketcher.Constraint("Coincident", 1, 2, 2, 1),
    Sketcher.Constraint("Coincident", 2, 2, 3, 1),
    Sketcher.Constraint("Coincident", 3, 2, 0, 1),
    Sketcher.Constraint("Coincident", 4, 2, 5, 1),
    Sketcher.Constraint("Coincident", 5, 2, 6, 1),
    Sketcher.Constraint("Coincident", 6, 2, 7, 1),
    Sketcher.Constraint("Coincident", 7, 2, 4, 1),
    Sketcher.Constraint("Vertical", 0),
    Sketcher.Constraint("Horizontal", 1),
    Sketcher.Constraint("Vertical", 2),
    Sketcher.Constraint("Horizontal", 3),
    Sketcher.Constraint("Vertical", 4),
    Sketcher.Constraint("Horizontal", 5),
    Sketcher.Constraint("Vertical", 6),
    Sketcher.Constraint("Horizontal", 7),
    Sketcher.Constraint("Horizontal", 8),
    Sketcher.Constraint("Coincident", 8, 1, 5, 2),
    Sketcher.Constraint("Coincident", 8, 2, 0, 2),
    Sketcher.Constraint("Symmetric", 3, 2, 6, 2, -2),
    Sketcher.Constraint("Equal", 3, 5),
    Sketcher.Constraint("Equal", 7, 0),
    Sketcher.Constraint("DistanceX", 1, 1, 1, 2, 8.0),
    Sketcher.Constraint("DistanceX", 8, 2, 8, 1, 68.0),
    Sketcher.Constraint("DistanceY", 0, 2, -1, 1, 148.95689),
])
groove2 = doc.addObject("PartDesign::Groove", "Groove001")
body2.addObject(groove2)
groove2.Profile = sketch8
groove2.ReferenceAxis = (sketch8, ["Axis0"])
groove2.Angle = 45

doc.recompute()
